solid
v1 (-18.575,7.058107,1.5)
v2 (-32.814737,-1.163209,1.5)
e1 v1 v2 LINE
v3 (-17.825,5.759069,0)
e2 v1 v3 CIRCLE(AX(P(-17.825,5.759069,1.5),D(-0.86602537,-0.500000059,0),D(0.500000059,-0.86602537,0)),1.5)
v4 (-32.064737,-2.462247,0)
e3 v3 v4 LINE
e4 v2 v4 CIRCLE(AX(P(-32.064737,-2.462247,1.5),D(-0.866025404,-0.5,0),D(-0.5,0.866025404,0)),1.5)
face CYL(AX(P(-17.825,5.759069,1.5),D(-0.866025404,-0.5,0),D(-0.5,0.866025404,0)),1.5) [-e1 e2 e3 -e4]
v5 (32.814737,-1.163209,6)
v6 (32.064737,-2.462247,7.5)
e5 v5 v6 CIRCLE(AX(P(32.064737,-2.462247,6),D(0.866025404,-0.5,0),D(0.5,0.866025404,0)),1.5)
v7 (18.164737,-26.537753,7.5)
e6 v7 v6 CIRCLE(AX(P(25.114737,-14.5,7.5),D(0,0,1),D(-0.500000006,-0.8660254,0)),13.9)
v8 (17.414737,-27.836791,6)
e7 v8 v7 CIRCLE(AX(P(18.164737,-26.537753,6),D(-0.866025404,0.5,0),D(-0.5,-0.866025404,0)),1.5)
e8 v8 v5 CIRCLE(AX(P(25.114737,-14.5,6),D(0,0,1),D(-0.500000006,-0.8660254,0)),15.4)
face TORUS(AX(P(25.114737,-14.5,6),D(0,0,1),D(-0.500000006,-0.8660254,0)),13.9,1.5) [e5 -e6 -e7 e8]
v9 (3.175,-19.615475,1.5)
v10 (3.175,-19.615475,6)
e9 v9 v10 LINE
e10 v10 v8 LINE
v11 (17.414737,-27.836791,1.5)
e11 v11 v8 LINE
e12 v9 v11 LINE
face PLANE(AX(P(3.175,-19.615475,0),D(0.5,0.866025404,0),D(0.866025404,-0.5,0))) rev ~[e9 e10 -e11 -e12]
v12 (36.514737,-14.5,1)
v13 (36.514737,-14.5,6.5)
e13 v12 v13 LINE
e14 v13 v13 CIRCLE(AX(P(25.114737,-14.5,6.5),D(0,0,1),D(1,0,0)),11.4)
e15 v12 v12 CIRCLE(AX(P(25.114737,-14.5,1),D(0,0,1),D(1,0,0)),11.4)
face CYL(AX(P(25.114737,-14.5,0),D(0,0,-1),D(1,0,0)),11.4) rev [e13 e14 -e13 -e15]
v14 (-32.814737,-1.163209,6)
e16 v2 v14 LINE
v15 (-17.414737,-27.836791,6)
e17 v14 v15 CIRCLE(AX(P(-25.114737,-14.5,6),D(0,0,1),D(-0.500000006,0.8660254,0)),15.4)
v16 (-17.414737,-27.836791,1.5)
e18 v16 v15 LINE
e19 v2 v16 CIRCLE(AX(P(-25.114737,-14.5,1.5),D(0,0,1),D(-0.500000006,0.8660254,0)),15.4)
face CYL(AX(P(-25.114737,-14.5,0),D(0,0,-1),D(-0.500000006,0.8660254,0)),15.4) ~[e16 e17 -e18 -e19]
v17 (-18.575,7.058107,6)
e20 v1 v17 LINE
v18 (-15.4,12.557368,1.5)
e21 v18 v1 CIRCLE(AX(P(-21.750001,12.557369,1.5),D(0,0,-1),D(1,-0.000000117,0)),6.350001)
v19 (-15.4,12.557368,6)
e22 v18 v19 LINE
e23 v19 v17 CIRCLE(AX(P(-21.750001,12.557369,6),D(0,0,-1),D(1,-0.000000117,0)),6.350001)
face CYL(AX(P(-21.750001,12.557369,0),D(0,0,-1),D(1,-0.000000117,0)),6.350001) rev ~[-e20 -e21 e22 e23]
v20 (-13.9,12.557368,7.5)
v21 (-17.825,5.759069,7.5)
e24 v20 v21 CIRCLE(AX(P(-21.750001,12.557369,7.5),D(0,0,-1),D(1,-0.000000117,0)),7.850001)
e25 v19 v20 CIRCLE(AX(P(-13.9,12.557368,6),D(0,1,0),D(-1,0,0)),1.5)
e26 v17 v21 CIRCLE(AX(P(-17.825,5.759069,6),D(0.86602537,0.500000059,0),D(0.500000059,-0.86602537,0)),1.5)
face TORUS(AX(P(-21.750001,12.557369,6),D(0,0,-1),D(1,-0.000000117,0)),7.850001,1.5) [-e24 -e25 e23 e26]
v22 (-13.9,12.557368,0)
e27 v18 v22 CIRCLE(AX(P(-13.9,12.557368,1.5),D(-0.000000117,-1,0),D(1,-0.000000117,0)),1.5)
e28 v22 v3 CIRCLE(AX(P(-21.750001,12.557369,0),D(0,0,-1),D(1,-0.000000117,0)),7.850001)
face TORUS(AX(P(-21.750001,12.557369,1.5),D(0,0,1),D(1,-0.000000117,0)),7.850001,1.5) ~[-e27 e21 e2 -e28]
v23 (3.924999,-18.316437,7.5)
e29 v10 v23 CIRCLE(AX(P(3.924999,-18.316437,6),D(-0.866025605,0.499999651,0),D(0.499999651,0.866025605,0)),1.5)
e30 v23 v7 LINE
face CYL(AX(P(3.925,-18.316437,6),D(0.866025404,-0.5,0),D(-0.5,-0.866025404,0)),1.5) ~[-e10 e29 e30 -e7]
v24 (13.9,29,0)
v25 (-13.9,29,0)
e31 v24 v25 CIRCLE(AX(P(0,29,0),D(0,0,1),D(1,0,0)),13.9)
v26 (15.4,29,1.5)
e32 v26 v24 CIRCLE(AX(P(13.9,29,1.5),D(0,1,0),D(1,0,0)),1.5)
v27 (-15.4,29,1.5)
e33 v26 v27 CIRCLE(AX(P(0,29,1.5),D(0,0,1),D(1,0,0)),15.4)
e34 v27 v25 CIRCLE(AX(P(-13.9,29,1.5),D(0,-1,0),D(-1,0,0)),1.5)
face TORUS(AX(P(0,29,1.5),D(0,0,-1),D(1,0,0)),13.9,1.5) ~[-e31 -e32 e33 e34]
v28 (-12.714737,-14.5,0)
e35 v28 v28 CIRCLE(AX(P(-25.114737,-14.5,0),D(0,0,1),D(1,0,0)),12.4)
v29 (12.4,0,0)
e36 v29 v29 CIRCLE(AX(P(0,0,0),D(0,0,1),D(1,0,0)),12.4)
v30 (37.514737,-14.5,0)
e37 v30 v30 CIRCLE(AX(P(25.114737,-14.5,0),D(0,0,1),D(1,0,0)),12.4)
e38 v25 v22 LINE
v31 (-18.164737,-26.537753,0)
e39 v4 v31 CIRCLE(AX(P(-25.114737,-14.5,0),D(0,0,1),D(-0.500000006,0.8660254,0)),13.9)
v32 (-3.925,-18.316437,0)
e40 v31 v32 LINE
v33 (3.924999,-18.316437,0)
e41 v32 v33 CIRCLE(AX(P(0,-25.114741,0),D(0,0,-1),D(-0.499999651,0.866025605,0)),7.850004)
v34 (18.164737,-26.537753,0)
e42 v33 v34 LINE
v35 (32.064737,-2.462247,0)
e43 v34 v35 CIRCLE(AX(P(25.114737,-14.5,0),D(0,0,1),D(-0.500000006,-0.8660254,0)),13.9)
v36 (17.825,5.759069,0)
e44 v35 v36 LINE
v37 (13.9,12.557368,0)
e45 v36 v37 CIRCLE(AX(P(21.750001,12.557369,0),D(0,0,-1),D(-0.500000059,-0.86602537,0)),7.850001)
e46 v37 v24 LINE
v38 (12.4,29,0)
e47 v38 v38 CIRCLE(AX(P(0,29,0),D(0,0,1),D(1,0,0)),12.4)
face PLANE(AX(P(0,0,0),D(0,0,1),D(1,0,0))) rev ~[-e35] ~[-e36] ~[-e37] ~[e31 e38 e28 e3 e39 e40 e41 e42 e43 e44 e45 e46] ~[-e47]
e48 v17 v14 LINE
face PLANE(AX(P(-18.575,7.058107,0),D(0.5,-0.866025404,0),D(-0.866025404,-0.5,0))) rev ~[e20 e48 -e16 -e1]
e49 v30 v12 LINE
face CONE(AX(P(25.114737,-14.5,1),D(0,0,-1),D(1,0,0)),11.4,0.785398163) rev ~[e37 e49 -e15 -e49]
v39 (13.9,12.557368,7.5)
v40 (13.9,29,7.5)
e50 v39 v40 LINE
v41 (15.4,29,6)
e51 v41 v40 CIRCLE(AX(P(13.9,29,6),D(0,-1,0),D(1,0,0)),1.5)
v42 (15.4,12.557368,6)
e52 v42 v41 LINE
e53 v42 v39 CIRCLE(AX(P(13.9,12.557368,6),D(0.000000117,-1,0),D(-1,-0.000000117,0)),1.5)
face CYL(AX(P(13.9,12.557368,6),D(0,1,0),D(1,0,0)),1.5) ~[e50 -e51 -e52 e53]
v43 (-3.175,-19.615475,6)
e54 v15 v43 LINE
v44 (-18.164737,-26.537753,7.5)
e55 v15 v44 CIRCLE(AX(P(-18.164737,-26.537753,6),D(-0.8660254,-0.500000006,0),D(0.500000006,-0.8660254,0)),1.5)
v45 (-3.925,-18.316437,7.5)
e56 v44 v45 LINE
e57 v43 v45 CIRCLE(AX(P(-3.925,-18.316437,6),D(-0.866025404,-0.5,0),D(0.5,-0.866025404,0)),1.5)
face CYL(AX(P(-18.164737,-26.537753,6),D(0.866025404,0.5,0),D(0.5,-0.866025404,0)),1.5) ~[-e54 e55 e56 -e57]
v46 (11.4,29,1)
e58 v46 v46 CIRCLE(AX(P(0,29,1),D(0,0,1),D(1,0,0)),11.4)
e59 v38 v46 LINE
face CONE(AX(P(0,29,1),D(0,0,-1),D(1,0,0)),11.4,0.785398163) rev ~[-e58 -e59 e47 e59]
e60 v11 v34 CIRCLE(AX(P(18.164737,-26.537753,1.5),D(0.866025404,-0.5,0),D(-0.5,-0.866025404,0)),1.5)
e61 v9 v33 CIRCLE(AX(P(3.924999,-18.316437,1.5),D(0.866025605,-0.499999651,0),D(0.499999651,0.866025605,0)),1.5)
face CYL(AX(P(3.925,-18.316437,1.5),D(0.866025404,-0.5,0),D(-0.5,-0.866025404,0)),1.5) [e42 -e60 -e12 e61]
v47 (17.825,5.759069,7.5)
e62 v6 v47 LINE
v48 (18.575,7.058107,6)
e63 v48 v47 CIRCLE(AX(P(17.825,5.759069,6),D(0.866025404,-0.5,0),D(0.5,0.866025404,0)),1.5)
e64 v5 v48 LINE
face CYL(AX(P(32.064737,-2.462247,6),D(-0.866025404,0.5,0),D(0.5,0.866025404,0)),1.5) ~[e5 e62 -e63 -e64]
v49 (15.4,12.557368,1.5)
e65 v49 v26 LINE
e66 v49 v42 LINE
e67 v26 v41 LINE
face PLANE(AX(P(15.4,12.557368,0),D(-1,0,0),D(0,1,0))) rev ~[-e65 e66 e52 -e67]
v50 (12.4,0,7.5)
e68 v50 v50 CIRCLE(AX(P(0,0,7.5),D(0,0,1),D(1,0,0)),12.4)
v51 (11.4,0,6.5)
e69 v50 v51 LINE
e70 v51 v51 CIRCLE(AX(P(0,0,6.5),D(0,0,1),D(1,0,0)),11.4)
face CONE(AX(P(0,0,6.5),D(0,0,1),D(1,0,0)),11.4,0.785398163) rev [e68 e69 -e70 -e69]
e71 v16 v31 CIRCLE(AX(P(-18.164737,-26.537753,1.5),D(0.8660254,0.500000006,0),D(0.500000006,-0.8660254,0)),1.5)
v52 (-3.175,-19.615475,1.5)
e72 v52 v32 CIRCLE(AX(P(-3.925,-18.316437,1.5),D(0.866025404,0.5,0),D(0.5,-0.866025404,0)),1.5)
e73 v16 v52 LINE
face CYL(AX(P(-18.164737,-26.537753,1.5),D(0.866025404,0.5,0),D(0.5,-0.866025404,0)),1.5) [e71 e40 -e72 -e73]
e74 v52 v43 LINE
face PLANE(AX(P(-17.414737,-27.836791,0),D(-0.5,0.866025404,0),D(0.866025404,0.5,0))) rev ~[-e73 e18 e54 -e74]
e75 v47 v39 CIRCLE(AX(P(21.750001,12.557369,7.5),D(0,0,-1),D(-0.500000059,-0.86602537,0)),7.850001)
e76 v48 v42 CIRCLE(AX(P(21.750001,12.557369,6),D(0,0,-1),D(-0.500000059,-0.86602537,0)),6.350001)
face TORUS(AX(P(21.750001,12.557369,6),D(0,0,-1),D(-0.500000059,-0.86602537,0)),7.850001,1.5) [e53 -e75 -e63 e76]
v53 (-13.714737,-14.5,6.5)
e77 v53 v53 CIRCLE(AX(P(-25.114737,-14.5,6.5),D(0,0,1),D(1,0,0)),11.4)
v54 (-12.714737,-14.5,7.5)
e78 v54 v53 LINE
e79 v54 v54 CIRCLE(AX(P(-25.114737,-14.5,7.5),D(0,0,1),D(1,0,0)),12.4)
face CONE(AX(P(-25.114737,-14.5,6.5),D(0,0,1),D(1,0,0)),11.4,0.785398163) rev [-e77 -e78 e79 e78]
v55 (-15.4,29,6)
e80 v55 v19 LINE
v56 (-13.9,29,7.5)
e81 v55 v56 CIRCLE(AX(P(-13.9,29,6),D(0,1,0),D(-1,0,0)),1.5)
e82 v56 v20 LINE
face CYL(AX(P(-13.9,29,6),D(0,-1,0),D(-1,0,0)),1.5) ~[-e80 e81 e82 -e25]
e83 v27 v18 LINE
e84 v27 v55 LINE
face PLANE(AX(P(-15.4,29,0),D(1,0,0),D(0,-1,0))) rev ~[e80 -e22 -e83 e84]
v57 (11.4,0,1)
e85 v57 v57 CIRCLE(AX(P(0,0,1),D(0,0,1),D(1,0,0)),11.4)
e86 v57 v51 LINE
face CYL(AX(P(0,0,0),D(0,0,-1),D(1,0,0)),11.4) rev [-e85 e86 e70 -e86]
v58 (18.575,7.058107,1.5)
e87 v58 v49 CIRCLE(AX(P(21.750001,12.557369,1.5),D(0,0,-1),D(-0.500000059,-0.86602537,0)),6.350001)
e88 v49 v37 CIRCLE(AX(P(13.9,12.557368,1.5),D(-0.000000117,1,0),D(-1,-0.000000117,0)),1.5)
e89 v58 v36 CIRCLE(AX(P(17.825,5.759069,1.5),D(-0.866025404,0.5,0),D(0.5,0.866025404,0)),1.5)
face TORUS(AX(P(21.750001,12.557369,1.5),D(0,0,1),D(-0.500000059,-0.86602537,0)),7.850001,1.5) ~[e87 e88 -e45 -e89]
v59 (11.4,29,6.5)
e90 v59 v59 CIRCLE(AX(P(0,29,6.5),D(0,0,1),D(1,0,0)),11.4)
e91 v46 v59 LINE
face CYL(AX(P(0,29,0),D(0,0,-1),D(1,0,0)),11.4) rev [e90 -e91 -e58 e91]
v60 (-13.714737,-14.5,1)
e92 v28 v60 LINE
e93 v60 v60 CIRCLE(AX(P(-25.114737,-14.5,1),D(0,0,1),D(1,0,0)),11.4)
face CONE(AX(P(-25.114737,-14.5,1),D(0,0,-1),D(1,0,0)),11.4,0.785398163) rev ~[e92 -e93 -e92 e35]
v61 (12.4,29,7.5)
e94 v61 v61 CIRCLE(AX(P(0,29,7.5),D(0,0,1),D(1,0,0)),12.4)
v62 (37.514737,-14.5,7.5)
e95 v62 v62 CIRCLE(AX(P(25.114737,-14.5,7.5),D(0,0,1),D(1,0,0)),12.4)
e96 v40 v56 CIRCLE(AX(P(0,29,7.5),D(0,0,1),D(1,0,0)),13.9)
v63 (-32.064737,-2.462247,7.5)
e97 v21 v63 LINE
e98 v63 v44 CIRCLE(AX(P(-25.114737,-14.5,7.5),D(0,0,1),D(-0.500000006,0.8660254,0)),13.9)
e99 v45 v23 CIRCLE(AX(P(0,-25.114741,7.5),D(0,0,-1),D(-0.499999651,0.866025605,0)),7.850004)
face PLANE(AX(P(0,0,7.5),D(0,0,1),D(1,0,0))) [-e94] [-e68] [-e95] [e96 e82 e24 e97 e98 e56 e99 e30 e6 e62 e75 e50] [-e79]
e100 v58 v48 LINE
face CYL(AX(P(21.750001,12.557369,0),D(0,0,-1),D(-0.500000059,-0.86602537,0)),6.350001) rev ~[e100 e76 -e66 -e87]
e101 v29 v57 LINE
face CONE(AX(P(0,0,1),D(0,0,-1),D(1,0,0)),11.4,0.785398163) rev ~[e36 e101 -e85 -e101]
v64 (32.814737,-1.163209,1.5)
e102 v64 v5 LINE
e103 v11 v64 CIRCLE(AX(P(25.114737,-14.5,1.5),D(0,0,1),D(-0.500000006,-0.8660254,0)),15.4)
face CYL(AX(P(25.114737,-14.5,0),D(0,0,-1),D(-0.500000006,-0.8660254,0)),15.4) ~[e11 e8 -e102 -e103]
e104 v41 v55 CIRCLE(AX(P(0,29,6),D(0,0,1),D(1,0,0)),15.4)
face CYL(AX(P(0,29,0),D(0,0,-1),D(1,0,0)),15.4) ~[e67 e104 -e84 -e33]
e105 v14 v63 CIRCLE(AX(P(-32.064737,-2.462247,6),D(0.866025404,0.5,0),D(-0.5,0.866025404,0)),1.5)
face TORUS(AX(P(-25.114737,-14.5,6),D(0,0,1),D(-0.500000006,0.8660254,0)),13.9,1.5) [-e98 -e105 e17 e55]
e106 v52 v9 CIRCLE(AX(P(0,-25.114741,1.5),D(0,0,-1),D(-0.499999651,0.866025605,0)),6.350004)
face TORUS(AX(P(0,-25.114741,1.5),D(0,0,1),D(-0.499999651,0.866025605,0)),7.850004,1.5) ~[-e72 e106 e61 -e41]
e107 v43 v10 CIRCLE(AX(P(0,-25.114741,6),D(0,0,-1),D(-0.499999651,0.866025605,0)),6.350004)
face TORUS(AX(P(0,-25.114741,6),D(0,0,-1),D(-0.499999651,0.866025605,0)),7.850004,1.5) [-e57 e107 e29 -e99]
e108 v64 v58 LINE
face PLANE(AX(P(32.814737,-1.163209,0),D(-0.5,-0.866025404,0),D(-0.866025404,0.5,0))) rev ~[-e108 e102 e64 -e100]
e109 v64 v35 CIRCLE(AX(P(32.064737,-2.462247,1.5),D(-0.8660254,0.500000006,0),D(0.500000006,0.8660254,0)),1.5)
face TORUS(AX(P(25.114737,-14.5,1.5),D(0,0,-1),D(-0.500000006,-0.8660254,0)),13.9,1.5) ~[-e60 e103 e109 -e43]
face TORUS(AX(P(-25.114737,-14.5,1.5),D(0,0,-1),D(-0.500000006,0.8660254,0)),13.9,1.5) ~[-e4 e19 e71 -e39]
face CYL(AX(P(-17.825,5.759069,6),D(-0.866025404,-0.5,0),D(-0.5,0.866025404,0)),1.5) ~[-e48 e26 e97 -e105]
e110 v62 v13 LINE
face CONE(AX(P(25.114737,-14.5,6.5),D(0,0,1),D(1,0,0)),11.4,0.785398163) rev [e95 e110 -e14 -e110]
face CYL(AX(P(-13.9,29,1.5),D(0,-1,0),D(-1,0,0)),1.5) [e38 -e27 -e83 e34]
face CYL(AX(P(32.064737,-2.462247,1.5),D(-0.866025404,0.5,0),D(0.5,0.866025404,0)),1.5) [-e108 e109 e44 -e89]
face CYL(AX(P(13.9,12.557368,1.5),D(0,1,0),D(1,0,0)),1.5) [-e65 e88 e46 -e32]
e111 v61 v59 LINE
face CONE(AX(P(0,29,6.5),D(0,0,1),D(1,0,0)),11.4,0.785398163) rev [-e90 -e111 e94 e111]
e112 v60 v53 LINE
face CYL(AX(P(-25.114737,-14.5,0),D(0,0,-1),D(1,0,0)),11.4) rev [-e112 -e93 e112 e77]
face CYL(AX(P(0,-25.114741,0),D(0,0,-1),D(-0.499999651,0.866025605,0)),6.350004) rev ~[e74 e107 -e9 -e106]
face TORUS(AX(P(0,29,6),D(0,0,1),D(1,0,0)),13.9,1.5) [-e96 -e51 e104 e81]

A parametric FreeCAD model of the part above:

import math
import FreeCAD as App
import Part
import Sketcher

V = App.Vector
Q = App.Units.Quantity


def edges_at(feature, points):
    """Names of the edges that pass closest to the given points."""
    edges = feature.Shape.Edges
    near = lambda p: min(range(len(edges)), key=lambda i: edges[i].distToShape(Part.Vertex(*p))[0])
    return sorted({f"Edge{near(p) + 1}" for p in points})

doc = App.newDocument("Part")
params = doc.addObject("Spreadsheet::Sheet", "Params")
for row, (alias, value) in enumerate([
    ("sketch1_diameter", "22.8 mm"),
    ("sketch1_radius", "15.4 mm"),
    ("sketch1_radius2", "6.350001 mm"),
    ("pad1_length", "7.5 mm"),
    ("fillet_radius", "1.5 mm"),
    ("chamfer_size", "1 mm"),
], start=1):
    params.set(f"A{row}", alias)
    params.set(f"B{row}", "=" + value)
    params.setAlias(f"B{row}", alias)

body = doc.addObject("PartDesign::Body", "Body")

sketch1 = body.newObject("Sketcher::SketchObject", "Sketch")
sketch1.AttachmentSupport = (doc.getObject("XY_Plane"), [""])
sketch1.MapMode = "FlatFace"
sketch1.addGeometry([
    Part.LineSegment(V(15, 13, 0), V(15, 29, 0)),
    Part.ArcOfCircle(Part.Circle(V(0, 29, 0), V(0, 0, 1), 15), math.radians(0), math.radians(180)),
    Part.LineSegment(V(-15, 29, 0), V(-15, 13, 0)),
    Part.ArcOfCircle(Part.Circle(V(-22, 13, 0), V(0, 0, 1), 6), math.radians(-60), math.radians(0)),
    Part.LineSegment(V(-19, 7, 0), V(-33, -1, 0)),
    Part.ArcOfCircle(Part.Circle(V(-25, -14, 0), V(0, 0, 1), 15), math.radians(120), math.radians(300)),
    Part.LineSegment(V(-17, -28, 0), V(-3, -20, 0)),
    Part.ArcOfCircle(Part.Circle(V(0, -25, 0), V(0, 0, 1), 6), math.radians(60), math.radians(120)),
    Part.LineSegment(V(3, -20, 0), V(17, -28, 0)),
    Part.ArcOfCircle(Part.Circle(V(25, -14, 0), V(0, 0, 1), 15), math.radians(-120), math.radians(60)),
    Part.LineSegment(V(33, -1, 0), V(19, 7, 0)),
    Part.ArcOfCircle(Part.Circle(V(22, 13, 0), V(0, 0, 1), 6), math.radians(-180), math.radians(-120)),
    Part.Circle(V(-25, -14, 0), V(0, 0, 1), 11),
    Part.Circle(V(25, -14, 0), V(0, 0, 1), 11),
    Part.Circle(V(0, 0, 0), V(0, 0, 1), 11),
    Part.Circle(V(0, 29, 0), V(0, 0, 1), 11),
], False)
sketch1.addConstraint([
    Sketcher.Constraint("Tangent", 0, 2, 1, 1),
    Sketcher.Constraint("Tangent", 1, 2, 2, 1),
    Sketcher.Constraint("Tangent", 2, 2, 3, 2),
    Sketcher.Constraint("Tangent", 3, 1, 4, 1),
    Sketcher.Constraint("Tangent", 4, 2, 5, 1),
    Sketcher.Constraint("Tangent", 5, 2, 6, 1),
    Sketcher.Constraint("Tangent", 6, 2, 7, 2),
    Sketcher.Constraint("Tangent", 7, 1, 8, 1),
    Sketcher.Constraint("Tangent", 8, 2, 9, 1),
    Sketcher.Constraint("Tangent", 9, 2, 10, 1),
    Sketcher.Constraint("Tangent", 10, 2, 11, 2),
    Sketcher.Constraint("Tangent", 11, 1, 0, 1),
    Sketcher.Constraint("Vertical", 0),
    Sketcher.Constraint("Vertical", 2),
    Sketcher.Constraint("Coincident", 14, 3, -1, 1),
    Sketcher.Constraint("Coincident", 12, 3, 5, 3),
    Sketcher.Constraint("Coincident", 13, 3, 9, 3),
    Sketcher.Constraint("Coincident", 15, 3, 1, 3),
    Sketcher.Constraint("Equal", 1, 5),
    Sketcher.Constraint("Equal", 5, 9),
    Sketcher.Constraint("Equal", 3, 11),
    Sketcher.Constraint("Equal", 12, 13),
    Sketcher.Constraint("Equal", 13, 14),
    Sketcher.Constraint("Equal", 14, 15),
    Sketcher.Constraint("Symmetric", 5, 3, 9, 3, -2),
    Sketcher.Constraint("Symmetric", 3, 3, 11, 3, -2),
    Sketcher.Constraint("PointOnObject", 7, 3, -2),
    Sketcher.Constraint("Parallel", 4, 6),
    Sketcher.Constraint("Equal", 4, 6),
    Sketcher.Constraint("Diameter", 12, 22.8),
    Sketcher.Constraint("Radius", 1, 15.4),
    Sketcher.Constraint("Angle", 4, Q("-150 deg")),
    Sketcher.Constraint("Radius", 3, 6.350001),
    Sketcher.Constraint("DistanceY", -1, 1, 1, 3, 29.0),
    Sketcher.Constraint("DistanceY", 5, 3, -1, 1, 14.5),
    Sketcher.Constraint("DistanceY", 0, 1, 0, 2, 16.442632),
])
sketch1.setExpression("Constraints[29]", "Params.sketch1_diameter")
sketch1.setExpression("Constraints[30]", "Params.sketch1_radius")
sketch1.setExpression("Constraints[32]", "Params.sketch1_radius2")
pad1 = body.newObject("PartDesign::Pad", "Pad")
pad1.Profile = sketch1
pad1.setExpression("Length", "Params.pad1_length")
doc.recompute()

fillet = body.newObject("PartDesign::Fillet", "Fillet")
fillet.Base = (pad1, edges_at(pad1, [(-16.251, 9.382, 0), (15.4, 12.557, 3.75), (25.695, 2.947, 7.5)]))
fillet.setExpression("Radius", "Params.fillet_radius")
doc.recompute()

chamfer = body.newObject("PartDesign::Chamfer", "Chamfer")
chamfer.Base = (fillet, edges_at(fillet, [
    (-11.4, 29, 7.5),
    (-11.4, 0, 0),
    (-11.4, 0, 7.5),
    (13.715, -14.5, 0),
    (13.715, -14.5, 7.5),
    (-36.515, -14.5, 7.5),
    (-36.515, -14.5, 0),
    (-11.4, 29, 0),
]))
chamfer.setExpression("Size", "Params.chamfer_size")

doc.recompute()
